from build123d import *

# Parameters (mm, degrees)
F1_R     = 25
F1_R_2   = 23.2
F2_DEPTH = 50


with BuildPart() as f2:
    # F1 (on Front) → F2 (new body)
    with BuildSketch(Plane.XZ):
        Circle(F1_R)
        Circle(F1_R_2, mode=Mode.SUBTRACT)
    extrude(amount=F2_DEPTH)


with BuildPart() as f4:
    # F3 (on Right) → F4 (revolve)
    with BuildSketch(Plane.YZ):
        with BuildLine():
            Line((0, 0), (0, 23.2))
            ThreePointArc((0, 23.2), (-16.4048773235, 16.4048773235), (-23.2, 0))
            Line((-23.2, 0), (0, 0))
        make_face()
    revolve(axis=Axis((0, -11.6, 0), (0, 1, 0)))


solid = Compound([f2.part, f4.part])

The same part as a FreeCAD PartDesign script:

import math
import FreeCAD as App
import Part
import Sketcher
Q = App.Units.Quantity

doc = App.newDocument("Part")
body = doc.addObject("PartDesign::Body", "Body")

# Sketch on XZ plane
sketch1 = body.newObject("Sketcher::SketchObject", "Sketch")
sketch1.AttachmentSupport = (doc.getObject("XZ_Plane"), [""])
sketch1.MapMode = "FlatFace"
sketch1.addGeometry(Part.Circle(App.Vector(0, 0, 0), App.Vector(0, 0, 1), 25), False)
sketch1.addGeometry(Part.Circle(App.Vector(0, 0, 0), App.Vector(0, 0, 1), 23), False)
sketch1.addConstraint(Sketcher.Constraint("Coincident", 0, 3, -1, 1))
sketch1.addConstraint(Sketcher.Constraint("Coincident", 1, 3, -1, 1))
sketch1.addConstraint(Sketcher.Constraint("Diameter", 0, Q("50 mm")))
sketch1.addConstraint(Sketcher.Constraint("Diameter", 1, Q("46.4 mm")))
pad1 = body.newObject("PartDesign::Pad", "Pad")
pad1.Profile = sketch1
pad1.Length = 50
body2 = doc.addObject("PartDesign::Body", "Body001")

# Sketch on YZ plane
sketch2 = body2.newObject("Sketcher::SketchObject", "Sketch001")
sketch2.AttachmentSupport = (doc.getObject("YZ_Plane001"), [""])
sketch2.MapMode = "FlatFace"
sketch2.addGeometry(Part.LineSegment(App.Vector(0, 0, 0), App.Vector(0, 23, 0)), False)
sketch2.addGeometry(Part.ArcOfCircle(Part.Circle(App.Vector(0, 0, 0), App.Vector(0, 0, 1), 23), math.radians(90), math.radians(180)), False)
sketch2.addGeometry(Part.LineSegment(App.Vector(-23, 0, 0), App.Vector(0, 0, 0)), False)
sketch2.addConstraint(Sketcher.Constraint("Coincident", 0, 2, 1, 1))
sketch2.addConstraint(Sketcher.Constraint("Coincident", 1, 2, 2, 1))
sketch2.addConstraint(Sketcher.Constraint("Coincident", 2, 2, 0, 1))
sketch2.addConstraint(Sketcher.Constraint("Vertical", 0))
sketch2.addConstraint(Sketcher.Constraint("Horizontal", 2))
sketch2.addConstraint(Sketcher.Constraint("Coincident", 1, 3, -1, 1))
sketch2.addConstraint(Sketcher.Constraint("Coincident", 2, 2, -1, 1))
sketch2.addConstraint(Sketcher.Constraint("Radius", 1, Q("23.2 mm")))
revolution = body2.newObject("PartDesign::Revolution", "Revolution")
revolution.Profile = sketch2
revolution.ReferenceAxis = (sketch2, ["H_Axis"])
revolution.Angle = 360

doc.recompute()
